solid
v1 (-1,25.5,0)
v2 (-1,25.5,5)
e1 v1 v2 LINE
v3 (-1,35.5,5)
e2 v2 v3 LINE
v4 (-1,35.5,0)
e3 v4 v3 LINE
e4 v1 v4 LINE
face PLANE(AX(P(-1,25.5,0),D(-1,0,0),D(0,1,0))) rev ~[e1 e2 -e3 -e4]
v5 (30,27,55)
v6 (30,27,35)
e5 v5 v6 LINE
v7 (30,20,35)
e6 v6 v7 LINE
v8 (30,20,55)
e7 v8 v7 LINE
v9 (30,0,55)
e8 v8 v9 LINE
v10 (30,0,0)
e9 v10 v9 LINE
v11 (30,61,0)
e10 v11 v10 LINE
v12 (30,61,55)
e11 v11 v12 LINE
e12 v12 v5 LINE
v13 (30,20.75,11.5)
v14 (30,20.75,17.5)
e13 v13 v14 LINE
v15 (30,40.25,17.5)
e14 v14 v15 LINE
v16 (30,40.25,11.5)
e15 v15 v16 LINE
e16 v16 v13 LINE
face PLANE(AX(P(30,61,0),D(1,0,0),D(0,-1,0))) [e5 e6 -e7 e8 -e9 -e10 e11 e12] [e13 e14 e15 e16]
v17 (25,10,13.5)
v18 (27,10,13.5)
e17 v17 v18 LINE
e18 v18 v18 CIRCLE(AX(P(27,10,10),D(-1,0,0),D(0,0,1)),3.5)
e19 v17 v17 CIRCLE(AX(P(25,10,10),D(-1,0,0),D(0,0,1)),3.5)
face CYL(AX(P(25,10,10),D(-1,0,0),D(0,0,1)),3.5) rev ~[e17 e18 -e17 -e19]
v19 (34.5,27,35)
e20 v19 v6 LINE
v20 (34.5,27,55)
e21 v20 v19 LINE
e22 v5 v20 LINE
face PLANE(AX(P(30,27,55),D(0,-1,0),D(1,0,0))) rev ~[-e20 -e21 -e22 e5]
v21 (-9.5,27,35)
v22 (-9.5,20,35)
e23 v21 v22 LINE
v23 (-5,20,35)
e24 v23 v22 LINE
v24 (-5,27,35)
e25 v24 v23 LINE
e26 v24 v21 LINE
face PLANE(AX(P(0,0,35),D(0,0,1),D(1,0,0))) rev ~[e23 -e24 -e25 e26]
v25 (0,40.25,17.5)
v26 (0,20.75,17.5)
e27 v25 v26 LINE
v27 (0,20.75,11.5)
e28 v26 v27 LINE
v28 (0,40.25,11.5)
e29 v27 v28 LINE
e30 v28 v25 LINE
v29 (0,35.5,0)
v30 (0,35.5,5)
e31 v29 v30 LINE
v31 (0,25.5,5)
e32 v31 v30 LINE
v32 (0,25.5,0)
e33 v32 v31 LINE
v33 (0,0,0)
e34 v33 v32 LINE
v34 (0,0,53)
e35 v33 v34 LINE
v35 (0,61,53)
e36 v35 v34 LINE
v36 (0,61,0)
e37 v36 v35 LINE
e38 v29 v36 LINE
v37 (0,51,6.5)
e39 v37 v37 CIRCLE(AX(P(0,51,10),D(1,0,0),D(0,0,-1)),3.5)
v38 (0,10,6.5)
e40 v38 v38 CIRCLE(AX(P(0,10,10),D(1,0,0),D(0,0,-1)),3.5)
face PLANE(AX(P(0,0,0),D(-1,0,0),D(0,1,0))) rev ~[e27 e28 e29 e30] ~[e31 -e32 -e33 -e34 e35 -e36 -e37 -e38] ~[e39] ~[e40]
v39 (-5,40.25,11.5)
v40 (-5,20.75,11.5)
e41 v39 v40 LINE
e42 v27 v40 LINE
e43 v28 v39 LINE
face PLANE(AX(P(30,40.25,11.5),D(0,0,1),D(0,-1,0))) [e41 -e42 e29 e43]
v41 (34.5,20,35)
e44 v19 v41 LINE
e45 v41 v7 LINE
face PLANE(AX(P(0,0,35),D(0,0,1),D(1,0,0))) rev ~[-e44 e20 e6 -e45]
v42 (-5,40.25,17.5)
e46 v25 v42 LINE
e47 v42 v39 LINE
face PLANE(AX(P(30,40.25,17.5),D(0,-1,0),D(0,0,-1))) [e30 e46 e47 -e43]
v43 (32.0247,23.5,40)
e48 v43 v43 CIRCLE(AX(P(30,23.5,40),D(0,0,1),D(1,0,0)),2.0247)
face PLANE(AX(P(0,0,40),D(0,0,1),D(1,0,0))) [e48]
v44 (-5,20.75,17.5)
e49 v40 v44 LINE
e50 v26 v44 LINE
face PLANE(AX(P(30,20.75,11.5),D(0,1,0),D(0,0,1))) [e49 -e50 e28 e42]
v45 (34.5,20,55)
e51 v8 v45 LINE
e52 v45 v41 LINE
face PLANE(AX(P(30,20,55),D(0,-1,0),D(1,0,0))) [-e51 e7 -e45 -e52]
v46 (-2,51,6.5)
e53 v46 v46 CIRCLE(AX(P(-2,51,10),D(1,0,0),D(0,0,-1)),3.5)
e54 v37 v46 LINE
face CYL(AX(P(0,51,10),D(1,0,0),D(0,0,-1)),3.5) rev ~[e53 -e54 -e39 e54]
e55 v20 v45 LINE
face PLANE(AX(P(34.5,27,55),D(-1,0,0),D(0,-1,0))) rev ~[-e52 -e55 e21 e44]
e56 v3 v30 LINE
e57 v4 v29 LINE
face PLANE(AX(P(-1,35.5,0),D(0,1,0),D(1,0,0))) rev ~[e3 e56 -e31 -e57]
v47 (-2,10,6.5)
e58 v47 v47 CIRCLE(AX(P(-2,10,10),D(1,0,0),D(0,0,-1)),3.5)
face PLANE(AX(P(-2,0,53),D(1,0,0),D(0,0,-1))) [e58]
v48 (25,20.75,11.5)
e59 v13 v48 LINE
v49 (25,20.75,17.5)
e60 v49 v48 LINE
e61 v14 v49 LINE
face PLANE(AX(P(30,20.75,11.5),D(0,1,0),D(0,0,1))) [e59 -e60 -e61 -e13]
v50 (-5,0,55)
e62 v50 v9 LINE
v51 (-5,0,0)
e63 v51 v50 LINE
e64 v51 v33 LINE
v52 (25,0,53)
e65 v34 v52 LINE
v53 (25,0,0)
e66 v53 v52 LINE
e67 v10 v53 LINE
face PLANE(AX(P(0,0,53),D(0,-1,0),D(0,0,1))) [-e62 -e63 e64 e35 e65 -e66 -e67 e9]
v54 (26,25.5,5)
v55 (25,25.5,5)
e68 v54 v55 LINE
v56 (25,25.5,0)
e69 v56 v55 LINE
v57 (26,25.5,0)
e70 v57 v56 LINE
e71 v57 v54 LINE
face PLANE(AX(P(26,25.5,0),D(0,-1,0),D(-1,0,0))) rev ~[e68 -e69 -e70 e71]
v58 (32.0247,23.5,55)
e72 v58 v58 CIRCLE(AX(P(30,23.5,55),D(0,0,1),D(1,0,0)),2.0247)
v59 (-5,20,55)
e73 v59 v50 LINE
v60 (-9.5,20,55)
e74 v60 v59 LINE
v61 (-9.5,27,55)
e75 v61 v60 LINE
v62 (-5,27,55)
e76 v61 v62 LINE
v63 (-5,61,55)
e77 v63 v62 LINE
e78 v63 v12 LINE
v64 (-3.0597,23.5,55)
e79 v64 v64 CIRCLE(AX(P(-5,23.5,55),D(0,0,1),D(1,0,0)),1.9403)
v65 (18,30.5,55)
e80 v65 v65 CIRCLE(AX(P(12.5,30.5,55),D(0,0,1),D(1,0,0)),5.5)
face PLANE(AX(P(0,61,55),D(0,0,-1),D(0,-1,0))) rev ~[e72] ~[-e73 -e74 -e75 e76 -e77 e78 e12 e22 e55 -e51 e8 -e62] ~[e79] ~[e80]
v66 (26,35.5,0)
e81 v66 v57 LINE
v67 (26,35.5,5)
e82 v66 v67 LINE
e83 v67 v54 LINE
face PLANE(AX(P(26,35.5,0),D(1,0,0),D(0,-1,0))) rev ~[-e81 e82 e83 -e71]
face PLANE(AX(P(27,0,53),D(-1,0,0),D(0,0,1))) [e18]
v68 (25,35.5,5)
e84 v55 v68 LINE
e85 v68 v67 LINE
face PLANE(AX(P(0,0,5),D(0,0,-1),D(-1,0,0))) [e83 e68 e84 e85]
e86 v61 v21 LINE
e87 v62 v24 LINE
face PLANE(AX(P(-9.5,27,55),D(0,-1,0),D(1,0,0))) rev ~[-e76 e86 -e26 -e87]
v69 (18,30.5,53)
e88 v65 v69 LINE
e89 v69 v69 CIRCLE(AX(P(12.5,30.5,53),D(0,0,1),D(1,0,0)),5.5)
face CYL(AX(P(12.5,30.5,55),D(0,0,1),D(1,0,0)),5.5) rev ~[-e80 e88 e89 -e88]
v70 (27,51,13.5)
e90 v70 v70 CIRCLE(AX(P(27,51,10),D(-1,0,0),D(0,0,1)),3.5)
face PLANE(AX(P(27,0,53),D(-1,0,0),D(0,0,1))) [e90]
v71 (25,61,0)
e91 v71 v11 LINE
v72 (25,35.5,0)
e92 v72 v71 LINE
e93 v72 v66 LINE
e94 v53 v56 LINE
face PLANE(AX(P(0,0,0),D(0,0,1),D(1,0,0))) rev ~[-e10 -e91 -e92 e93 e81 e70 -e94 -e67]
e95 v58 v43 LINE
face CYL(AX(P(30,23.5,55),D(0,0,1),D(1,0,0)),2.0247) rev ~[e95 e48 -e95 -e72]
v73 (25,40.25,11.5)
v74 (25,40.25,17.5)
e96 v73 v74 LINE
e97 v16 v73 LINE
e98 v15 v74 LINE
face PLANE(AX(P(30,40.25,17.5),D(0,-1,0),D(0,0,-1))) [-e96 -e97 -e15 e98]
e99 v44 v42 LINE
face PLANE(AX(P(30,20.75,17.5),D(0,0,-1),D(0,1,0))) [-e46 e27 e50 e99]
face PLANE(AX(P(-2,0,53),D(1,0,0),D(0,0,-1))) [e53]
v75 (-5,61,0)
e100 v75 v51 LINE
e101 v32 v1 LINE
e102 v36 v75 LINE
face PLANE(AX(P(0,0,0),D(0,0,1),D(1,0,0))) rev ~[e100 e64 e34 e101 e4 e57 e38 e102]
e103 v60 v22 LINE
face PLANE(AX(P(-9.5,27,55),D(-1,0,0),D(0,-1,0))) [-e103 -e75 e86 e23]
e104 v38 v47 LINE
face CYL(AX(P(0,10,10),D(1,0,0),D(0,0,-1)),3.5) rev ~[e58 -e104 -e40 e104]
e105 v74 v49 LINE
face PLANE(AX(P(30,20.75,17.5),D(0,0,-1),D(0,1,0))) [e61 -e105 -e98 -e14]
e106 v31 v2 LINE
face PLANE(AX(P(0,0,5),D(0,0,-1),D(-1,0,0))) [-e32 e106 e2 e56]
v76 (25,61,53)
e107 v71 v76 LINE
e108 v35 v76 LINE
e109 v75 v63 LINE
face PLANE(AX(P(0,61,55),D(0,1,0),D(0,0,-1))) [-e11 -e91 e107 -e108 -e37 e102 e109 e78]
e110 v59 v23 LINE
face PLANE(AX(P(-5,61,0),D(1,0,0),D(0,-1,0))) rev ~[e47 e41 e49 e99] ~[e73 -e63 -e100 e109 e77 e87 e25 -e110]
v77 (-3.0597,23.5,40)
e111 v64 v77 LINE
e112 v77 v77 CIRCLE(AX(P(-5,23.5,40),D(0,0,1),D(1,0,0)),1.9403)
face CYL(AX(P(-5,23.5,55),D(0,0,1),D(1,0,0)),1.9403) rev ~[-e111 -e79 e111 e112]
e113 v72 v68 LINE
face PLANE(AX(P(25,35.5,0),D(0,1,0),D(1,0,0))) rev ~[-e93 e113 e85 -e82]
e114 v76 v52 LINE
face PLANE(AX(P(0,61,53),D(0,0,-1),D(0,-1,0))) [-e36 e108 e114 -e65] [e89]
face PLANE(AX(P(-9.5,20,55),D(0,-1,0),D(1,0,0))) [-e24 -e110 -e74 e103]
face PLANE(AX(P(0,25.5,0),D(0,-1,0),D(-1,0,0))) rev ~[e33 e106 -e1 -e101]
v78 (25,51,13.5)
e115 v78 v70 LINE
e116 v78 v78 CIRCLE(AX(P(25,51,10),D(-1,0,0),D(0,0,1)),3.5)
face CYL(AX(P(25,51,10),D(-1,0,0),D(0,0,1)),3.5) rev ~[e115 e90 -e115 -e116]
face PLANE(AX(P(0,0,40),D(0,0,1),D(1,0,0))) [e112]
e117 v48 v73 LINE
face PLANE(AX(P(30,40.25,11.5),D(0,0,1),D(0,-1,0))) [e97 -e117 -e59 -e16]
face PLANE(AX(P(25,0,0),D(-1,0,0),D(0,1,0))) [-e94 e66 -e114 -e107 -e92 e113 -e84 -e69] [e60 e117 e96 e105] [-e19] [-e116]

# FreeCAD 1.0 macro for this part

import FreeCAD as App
import Part
import Sketcher

V = App.Vector

doc = App.newDocument("Part")
body = doc.addObject("PartDesign::Body", "Body")
body.AllowCompound = True

# Sketch on XY plane
sketch1 = body.newObject("Sketcher::SketchObject", "Sketch")
sketch1.AttachmentSupport = (doc.getObject("XY_Plane"), [""])
sketch1.MapMode = "FlatFace"
sketch1.addGeometry(Part.LineSegment(V(-5, 0, 0), V(0, 0, 0)), False)
sketch1.addGeometry(Part.LineSegment(V(0, 0, 0), V(0, 61, 0)), False)
sketch1.addGeometry(Part.LineSegment(V(0, 61, 0), V(-5, 61, 0)), False)
sketch1.addGeometry(Part.LineSegment(V(-5, 61, 0), V(-5, 0, 0)), False)
sketch1.addGeometry(Part.LineSegment(V(25, 61, 0), V(25, 0, 0)), False)
sketch1.addGeometry(Part.LineSegment(V(25, 0, 0), V(30, 0, 0)), False)
sketch1.addGeometry(Part.LineSegment(V(30, 0, 0), V(30, 61, 0)), False)
sketch1.addGeometry(Part.LineSegment(V(30, 61, 0), V(25, 61, 0)), False)
sketch1.addConstraint(Sketcher.Constraint("Coincident", 0, 2, 1, 1))
sketch1.addConstraint(Sketcher.Constraint("Coincident", 1, 2, 2, 1))
sketch1.addConstraint(Sketcher.Constraint("Coincident", 2, 2, 3, 1))
sketch1.addConstraint(Sketcher.Constraint("Coincident", 3, 2, 0, 1))
sketch1.addConstraint(Sketcher.Constraint("Coincident", 4, 2, 5, 1))
sketch1.addConstraint(Sketcher.Constraint("Coincident", 5, 2, 6, 1))
sketch1.addConstraint(Sketcher.Constraint("Coincident", 6, 2, 7, 1))
sketch1.addConstraint(Sketcher.Constraint("Coincident", 7, 2, 4, 1))
sketch1.addConstraint(Sketcher.Constraint("Horizontal", 0))
sketch1.addConstraint(Sketcher.Constraint("Vertical", 1))
sketch1.addConstraint(Sketcher.Constraint("Horizontal", 2))
sketch1.addConstraint(Sketcher.Constraint("Vertical", 3))
sketch1.addConstraint(Sketcher.Constraint("Vertical", 4))
sketch1.addConstraint(Sketcher.Constraint("Horizontal", 5))
sketch1.addConstraint(Sketcher.Constraint("Vertical", 6))
sketch1.addConstraint(Sketcher.Constraint("Horizontal", 7))
sketch1.addConstraint(Sketcher.Constraint("Coincident", 0, 2, -1, 1))
sketch1.addConstraint(Sketcher.Constraint("PointOnObject", 4, 2, -1))
sketch1.addConstraint(Sketcher.Constraint("Horizontal", 2, 2, 6, 2))
sketch1.addConstraint(Sketcher.Constraint("Equal", 2, 5))
sketch1.addConstraint(Sketcher.Constraint("DistanceX", 0, 1, 0, 2, 5.0))
sketch1.addConstraint(Sketcher.Constraint("DistanceY", 1, 1, 1, 2, 61.0))
sketch1.addConstraint(Sketcher.Constraint("DistanceX", -1, 1, 4, 2, 25.0))
pad1 = body.newObject("PartDesign::Pad", "Pad")
pad1.Profile = sketch1
pad1.Length = 55

# Sketch on YZ plane
sketch2 = body.newObject("Sketcher::SketchObject", "Sketch001")
sketch2.AttachmentSupport = (doc.getObject("YZ_Plane"), [""])
sketch2.MapMode = "FlatFace"
sketch2.addGeometry(Part.LineSegment(V(61, 53, 0), V(61, 55, 0)), False)
sketch2.addGeometry(Part.LineSegment(V(61, 55, 0), V(0, 55, 0)), False)
sketch2.addGeometry(Part.LineSegment(V(0, 55, 0), V(0, 53, 0)), False)
sketch2.addGeometry(Part.LineSegment(V(0, 53, 0), V(61, 53, 0)), False)
sketch2.addConstraint(Sketcher.Constraint("Coincident", 0, 2, 1, 1))
sketch2.addConstraint(Sketcher.Constraint("Coincident", 1, 2, 2, 1))
sketch2.addConstraint(Sketcher.Constraint("Coincident", 2, 2, 3, 1))
sketch2.addConstraint(Sketcher.Constraint("Coincident", 3, 2, 0, 1))
sketch2.addConstraint(Sketcher.Constraint("Vertical", 0))
sketch2.addConstraint(Sketcher.Constraint("Horizontal", 1))
sketch2.addConstraint(Sketcher.Constraint("Vertical", 2))
sketch2.addConstraint(Sketcher.Constraint("Horizontal", 3))
sketch2.addConstraint(Sketcher.Constraint("PointOnObject", 1, 2, -2))
sketch2.addConstraint(Sketcher.Constraint("DistanceY", 0, 1, 0, 2, 2.0))
sketch2.addConstraint(Sketcher.Constraint("DistanceX", 1, 2, 1, 1, 61.0))
sketch2.addConstraint(Sketcher.Constraint("DistanceY", -1, 1, 0, 2, 55.0))
pad2 = body.newObject("PartDesign::Pad", "Pad001")
pad2.Profile = sketch2
pad2.Length = 25

# Sketch on XY plane
sketch3 = body.newObject("Sketcher::SketchObject", "Sketch002")
sketch3.AttachmentSupport = (doc.getObject("XY_Plane"), [""])
sketch3.MapMode = "FlatFace"
sketch3.AttachmentOffset = App.Placement(V(0, 0, 55), App.Rotation())
sketch3.addGeometry(Part.Circle(V(12, 30, 0), V(0, 0, 1), 6), False)
sketch3.addConstraint(Sketcher.Constraint("Diameter", 0, 11.0))
sketch3.addConstraint(Sketcher.Constraint("DistanceY", -1, 1, 0, 3, 30.5))
sketch3.addConstraint(Sketcher.Constraint("DistanceX", -1, 1, 0, 3, 12.5))
pocket1 = body.newObject("PartDesign::Pocket", "Pocket")
pocket1.Profile = sketch3
pocket1.Length = 2.5

# Sketch on XY plane
sketch4 = body.newObject("Sketcher::SketchObject", "Sketch003")
sketch4.AttachmentSupport = (doc.getObject("XY_Plane"), [""])
sketch4.MapMode = "FlatFace"
sketch4.AttachmentOffset = App.Placement(V(0, 0, 55), App.Rotation())
sketch4.addGeometry(Part.LineSegment(V(-10, 27, 0), V(-10, 20, 0)), False)
sketch4.addGeometry(Part.LineSegment(V(-10, 20, 0), V(-2, 20, 0)), False)
sketch4.addGeometry(Part.LineSegment(V(-2, 20, 0), V(-2, 27, 0)), False)
sketch4.addGeometry(Part.LineSegment(V(-2, 27, 0), V(-10, 27, 0)), False)
sketch4.addGeometry(Part.LineSegment(V(34, 27, 0), V(28, 27, 0)), False)
sketch4.addGeometry(Part.LineSegment(V(28, 27, 0), V(28, 20, 0)), False)
sketch4.addGeometry(Part.LineSegment(V(28, 20, 0), V(34, 20, 0)), False)
sketch4.addGeometry(Part.LineSegment(V(34, 20, 0), V(34, 27, 0)), False)
sketch4.addConstraint(Sketcher.Constraint("Coincident", 0, 2, 1, 1))
sketch4.addConstraint(Sketcher.Constraint("Coincident", 1, 2, 2, 1))
sketch4.addConstraint(Sketcher.Constraint("Coincident", 2, 2, 3, 1))
sketch4.addConstraint(Sketcher.Constraint("Coincident", 3, 2, 0, 1))
sketch4.addConstraint(Sketcher.Constraint("Coincident", 4, 2, 5, 1))
sketch4.addConstraint(Sketcher.Constraint("Coincident", 5, 2, 6, 1))
sketch4.addConstraint(Sketcher.Constraint("Coincident", 6, 2, 7, 1))
sketch4.addConstraint(Sketcher.Constraint("Coincident", 7, 2, 4, 1))
sketch4.addConstraint(Sketcher.Constraint("Vertical", 0))
sketch4.addConstraint(Sketcher.Constraint("Horizontal", 1))
sketch4.addConstraint(Sketcher.Constraint("Vertical", 2))
sketch4.addConstraint(Sketcher.Constraint("Horizontal", 3))
sketch4.addConstraint(Sketcher.Constraint("Horizontal", 4))
sketch4.addConstraint(Sketcher.Constraint("Vertical", 5))
sketch4.addConstraint(Sketcher.Constraint("Horizontal", 6))
sketch4.addConstraint(Sketcher.Constraint("Vertical", 7))
sketch4.addConstraint(Sketcher.Constraint("Horizontal", 3, 2, 4, 2))
sketch4.addConstraint(Sketcher.Constraint("Horizontal", 1, 2, 5, 2))
sketch4.addConstraint(Sketcher.Constraint("Equal", 3, 4))
sketch4.addConstraint(Sketcher.Constraint("Equal", 6, 0))
sketch4.addConstraint(Sketcher.Constraint("DistanceX", 1, 1, 1, 2, 7.0))
sketch4.addConstraint(Sketcher.Constraint("DistanceY", -1, 1, 0, 2, 20.0))
sketch4.addConstraint(Sketcher.Constraint("DistanceX", 2, 2, 4, 2, 30.0))
sketch4.addConstraint(Sketcher.Constraint("DistanceX", 0, 2, -1, 1, 9.5))
pad3 = body.newObject("PartDesign::Pad", "Pad002")
pad3.Profile = sketch4
pad3.Length = 20
pad3.Reversed = True

# Sketch on XY plane
sketch5 = body.newObject("Sketcher::SketchObject", "Sketch004")
sketch5.AttachmentSupport = (doc.getObject("XY_Plane"), [""])
sketch5.MapMode = "FlatFace"
sketch5.AttachmentOffset = App.Placement(V(0, 0, 55), App.Rotation())
sketch5.addGeometry(Part.Circle(V(-5, 23.5, 0), V(0, 0, 1), 1.9), False)
sketch5.addGeometry(Part.Circle(V(30, 23.5, 0), V(0, 0, 1), 2), False)
sketch5.addConstraint(Sketcher.Constraint("Horizontal", 0, 3, 1, 3))
sketch5.addConstraint(Sketcher.Constraint("DistanceX", 0, 3, 1, 3, 35.0))
sketch5.addConstraint(Sketcher.Constraint("DistanceX", 0, 3, -1, 1, 5.0))
sketch5.addConstraint(Sketcher.Constraint("Diameter", 0, 3.8806))
sketch5.addConstraint(Sketcher.Constraint("Diameter", 1, 4.0494))
sketch5.addConstraint(Sketcher.Constraint("DistanceY", -1, 1, 0, 3, 23.5))
pocket2 = body.newObject("PartDesign::Pocket", "Pocket001")
pocket2.Profile = sketch5
pocket2.Length = 15

# Sketch on YZ plane
sketch6 = body.newObject("Sketcher::SketchObject", "Sketch005")
sketch6.AttachmentSupport = (doc.getObject("YZ_Plane"), [""])
sketch6.MapMode = "FlatFace"
sketch6.AttachmentOffset = App.Placement(V(0, 0, 30), App.Rotation())
sketch6.addGeometry(Part.LineSegment(V(40, 12, 0), V(40, 18, 0)), False)
sketch6.addGeometry(Part.LineSegment(V(40, 18, 0), V(21, 18, 0)), False)
sketch6.addGeometry(Part.LineSegment(V(21, 18, 0), V(21, 12, 0)), False)
sketch6.addGeometry(Part.LineSegment(V(21, 12, 0), V(40, 12, 0)), False)
sketch6.addConstraint(Sketcher.Constraint("Coincident", 0, 2, 1, 1))
sketch6.addConstraint(Sketcher.Constraint("Coincident", 1, 2, 2, 1))
sketch6.addConstraint(Sketcher.Constraint("Coincident", 2, 2, 3, 1))
sketch6.addConstraint(Sketcher.Constraint("Coincident", 3, 2, 0, 1))
sketch6.addConstraint(Sketcher.Constraint("Vertical", 0))
sketch6.addConstraint(Sketcher.Constraint("Horizontal", 1))
sketch6.addConstraint(Sketcher.Constraint("Vertical", 2))
sketch6.addConstraint(Sketcher.Constraint("Horizontal", 3))
sketch6.addConstraint(Sketcher.Constraint("DistanceY", 0, 1, 0, 2, 6.0))
sketch6.addConstraint(Sketcher.Constraint("DistanceX", 1, 2, 1, 1, 19.5))
sketch6.addConstraint(Sketcher.Constraint("DistanceY", -1, 1, 2, 2, 11.5))
sketch6.addConstraint(Sketcher.Constraint("DistanceX", -1, 1, 0, 2, 40.25))
pocket3 = body.newObject("PartDesign::Pocket", "Pocket002")
pocket3.Profile = sketch6
pocket3.Length = 35

# Sketch on XY plane
sketch7 = body.newObject("Sketcher::SketchObject", "Sketch006")
sketch7.AttachmentSupport = (doc.getObject("XY_Plane"), [""])
sketch7.MapMode = "FlatFace"
sketch7.addGeometry(Part.LineSegment(V(0, 35.5, 0), V(0, 25.5, 0)), False)
sketch7.addGeometry(Part.LineSegment(V(0, 25.5, 0), V(-1, 25.5, 0)), False)
sketch7.addGeometry(Part.LineSegment(V(-1, 25.5, 0), V(-1, 35.5, 0)), False)
sketch7.addGeometry(Part.LineSegment(V(-1, 35.5, 0), V(0, 35.5, 0)), False)
sketch7.addGeometry(Part.LineSegment(V(26, 25.5, 0), V(25, 25.5, 0)), False)
sketch7.addGeometry(Part.LineSegment(V(25, 25.5, 0), V(25, 35.5, 0)), False)
sketch7.addGeometry(Part.LineSegment(V(25, 35.5, 0), V(26, 35.5, 0)), False)
sketch7.addGeometry(Part.LineSegment(V(26, 35.5, 0), V(26, 25.5, 0)), False)
sketch7.addConstraint(Sketcher.Constraint("Coincident", 0, 2, 1, 1))
sketch7.addConstraint(Sketcher.Constraint("Coincident", 1, 2, 2, 1))
sketch7.addConstraint(Sketcher.Constraint("Coincident", 2, 2, 3, 1))
sketch7.addConstraint(Sketcher.Constraint("Coincident", 3, 2, 0, 1))
sketch7.addConstraint(Sketcher.Constraint("Coincident", 4, 2, 5, 1))
sketch7.addConstraint(Sketcher.Constraint("Coincident", 5, 2, 6, 1))
sketch7.addConstraint(Sketcher.Constraint("Coincident", 6, 2, 7, 1))
sketch7.addConstraint(Sketcher.Constraint("Coincident", 7, 2, 4, 1))
sketch7.addConstraint(Sketcher.Constraint("Vertical", 0))
sketch7.addConstraint(Sketcher.Constraint("Horizontal", 1))
sketch7.addConstraint(Sketcher.Constraint("Vertical", 2))
sketch7.addConstraint(Sketcher.Constraint("Horizontal", 3))
sketch7.addConstraint(Sketcher.Constraint("Horizontal", 4))
sketch7.addConstraint(Sketcher.Constraint("Vertical", 5))
sketch7.addConstraint(Sketcher.Constraint("Horizontal", 6))
sketch7.addConstraint(Sketcher.Constraint("Vertical", 7))
sketch7.addConstraint(Sketcher.Constraint("PointOnObject", 0, 2, -2))
sketch7.addConstraint(Sketcher.Constraint("Horizontal", 1, 2, 4, 2))
sketch7.addConstraint(Sketcher.Constraint("Horizontal", 3, 2, 5, 2))
sketch7.addConstraint(Sketcher.Constraint("Equal", 3, 4))
sketch7.addConstraint(Sketcher.Constraint("DistanceX", 1, 2, 1, 1, 1.0))
sketch7.addConstraint(Sketcher.Constraint("DistanceY", 0, 2, 0, 1, 10.0))
sketch7.addConstraint(Sketcher.Constraint("DistanceX", -1, 1, 4, 2, 25.0))
sketch7.addConstraint(Sketcher.Constraint("DistanceY", -1, 1, 0, 2, 25.5))
pocket4 = body.newObject("PartDesign::Pocket", "Pocket003")
pocket4.Profile = sketch7
pocket4.Length = 5
pocket4.Reversed = True

# Sketch on YZ plane
sketch8 = body.newObject("Sketcher::SketchObject", "Sketch007")
sketch8.AttachmentSupport = (doc.getObject("YZ_Plane"), [""])
sketch8.MapMode = "FlatFace"
sketch8.AttachmentOffset = App.Placement(V(0, 0, 25), App.Rotation())
sketch8.addGeometry(Part.Circle(V(10, 10, 0), V(0, 0, 1), 3.5), False)
sketch8.addGeometry(Part.Circle(V(51, 10, 0), V(0, 0, 1), 3.5), False)
sketch8.addConstraint(Sketcher.Constraint("Equal", 0, 1))
sketch8.addConstraint(Sketcher.Constraint("Horizontal", 0, 3, 1, 3))
sketch8.addConstraint(Sketcher.Constraint("Diameter", 0, 7.0))
sketch8.addConstraint(Sketcher.Constraint("DistanceX", -1, 1, 0, 3, 10.0))
sketch8.addConstraint(Sketcher.Constraint("DistanceY", -1, 1, 0, 3, 10.0))
sketch8.addConstraint(Sketcher.Constraint("DistanceX", -1, 1, 1, 3, 51.0))
pocket5 = body.newObject("PartDesign::Pocket", "Pocket004")
pocket5.Profile = sketch8
pocket5.Length = 2
pocket5.Reversed = True

# Sketch on YZ plane
sketch9 = body.newObject("Sketcher::SketchObject", "Sketch008")
sketch9.AttachmentSupport = (doc.getObject("YZ_Plane"), [""])
sketch9.MapMode = "FlatFace"
sketch9.addGeometry(Part.Circle(V(10, 10, 0), V(0, 0, 1), 3.5), False)
sketch9.addGeometry(Part.Circle(V(51, 10, 0), V(0, 0, 1), 3.5), False)
sketch9.addConstraint(Sketcher.Constraint("Equal", 0, 1))
sketch9.addConstraint(Sketcher.Constraint("Horizontal", 0, 3, 1, 3))
sketch9.addConstraint(Sketcher.Constraint("Diameter", 0, 7.0))
sketch9.addConstraint(Sketcher.Constraint("DistanceX", -1, 1, 0, 3, 10.0))
sketch9.addConstraint(Sketcher.Constraint("DistanceY", -1, 1, 0, 3, 10.0))
sketch9.addConstraint(Sketcher.Constraint("DistanceX", -1, 1, 1, 3, 51.0))
pocket6 = body.newObject("PartDesign::Pocket", "Pocket005")
pocket6.Profile = sketch9
pocket6.Length = 2

doc.recompute()
